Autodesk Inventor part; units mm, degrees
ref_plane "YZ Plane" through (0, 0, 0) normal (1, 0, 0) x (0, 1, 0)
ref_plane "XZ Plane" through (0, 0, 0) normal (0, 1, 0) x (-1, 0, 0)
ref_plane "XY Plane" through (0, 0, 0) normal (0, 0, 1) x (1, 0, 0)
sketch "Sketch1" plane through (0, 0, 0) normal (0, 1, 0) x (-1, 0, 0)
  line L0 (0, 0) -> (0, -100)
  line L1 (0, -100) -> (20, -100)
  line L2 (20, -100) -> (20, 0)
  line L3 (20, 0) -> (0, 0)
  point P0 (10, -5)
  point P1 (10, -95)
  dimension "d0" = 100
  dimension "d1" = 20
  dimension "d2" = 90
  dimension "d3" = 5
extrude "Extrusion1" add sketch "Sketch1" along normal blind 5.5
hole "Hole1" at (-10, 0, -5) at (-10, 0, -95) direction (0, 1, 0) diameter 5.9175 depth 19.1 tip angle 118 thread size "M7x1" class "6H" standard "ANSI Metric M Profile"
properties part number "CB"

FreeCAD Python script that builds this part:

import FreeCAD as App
import Part
import Sketcher


def add_polygon(sketch, points):
    """Adds a closed chain of lines whose ends are joined by coincident constraints."""
    first, n = sketch.GeometryCount, len(points)
    for a, b in zip(points, points[1:] + points[:1]):
        sketch.addGeometry(Part.LineSegment(App.Vector(*a, 0), App.Vector(*b, 0)), False)
    for i in range(n):
        sketch.addConstraint(Sketcher.Constraint("Coincident", first + i, 2, first + (i + 1) % n, 1))

doc = App.newDocument("Part")
body = doc.addObject("PartDesign::Body", "Body")

# Sketch on XZ plane
sketch1 = body.newObject("Sketcher::SketchObject", "Sketch")
sketch1.AttachmentSupport = (doc.getObject("XZ_Plane"), [""])
sketch1.MapMode = "FlatFace"
add_polygon(sketch1, [(-20, 0), (0, 0), (0, -100), (-20, -100)])  # lines 0-3
sketch1.addConstraint([
    Sketcher.Constraint("Horizontal", 0),
    Sketcher.Constraint("Vertical", 1),
    Sketcher.Constraint("Horizontal", 2),
    Sketcher.Constraint("Vertical", 3),
    Sketcher.Constraint("Coincident", 0, 2, -1, 1),
    Sketcher.Constraint("DistanceX", 0, 1, 0, 2, 20.0),
    Sketcher.Constraint("DistanceY", 1, 2, 1, 1, 100.0),
])
pad1 = body.newObject("PartDesign::Pad", "Pad")
pad1.Profile = sketch1
pad1.Length = 5.5
pad1.Reversed = True

# Sketch on XZ plane
sketch2 = body.newObject("Sketcher::SketchObject", "Sketch001")
sketch2.AttachmentSupport = (doc.getObject("XZ_Plane"), [""])
sketch2.MapMode = "FlatFace"
sketch2.addGeometry([
    Part.Circle(App.Vector(-10, -5, 0), App.Vector(0, 0, 1), 3),
    Part.Circle(App.Vector(-10, -95, 0), App.Vector(0, 0, 1), 3),
], False)
sketch2.addConstraint([
    Sketcher.Constraint("Equal", 0, 1),
    Sketcher.Constraint("Vertical", 0, 3, 1, 3),
    Sketcher.Constraint("DistanceX", 0, 3, -1, 1, 10.0),
    Sketcher.Constraint("DistanceY", 0, 3, -1, 1, 5.0),
    Sketcher.Constraint("DistanceY", 1, 3, -1, 1, 95.0),
    Sketcher.Constraint("Diameter", 0, 5.9175),
])
doc.recompute()
hole = body.newObject("PartDesign::Hole", "Hole")
hole.Profile = sketch2
hole.ThreadType = "None"
hole.Diameter = 5.9175
hole.DepthType = "Dimension"
hole.Depth = 19.1
hole.DrillPoint = "Angled"
hole.DrillPointAngle = 118

doc.recompute()
